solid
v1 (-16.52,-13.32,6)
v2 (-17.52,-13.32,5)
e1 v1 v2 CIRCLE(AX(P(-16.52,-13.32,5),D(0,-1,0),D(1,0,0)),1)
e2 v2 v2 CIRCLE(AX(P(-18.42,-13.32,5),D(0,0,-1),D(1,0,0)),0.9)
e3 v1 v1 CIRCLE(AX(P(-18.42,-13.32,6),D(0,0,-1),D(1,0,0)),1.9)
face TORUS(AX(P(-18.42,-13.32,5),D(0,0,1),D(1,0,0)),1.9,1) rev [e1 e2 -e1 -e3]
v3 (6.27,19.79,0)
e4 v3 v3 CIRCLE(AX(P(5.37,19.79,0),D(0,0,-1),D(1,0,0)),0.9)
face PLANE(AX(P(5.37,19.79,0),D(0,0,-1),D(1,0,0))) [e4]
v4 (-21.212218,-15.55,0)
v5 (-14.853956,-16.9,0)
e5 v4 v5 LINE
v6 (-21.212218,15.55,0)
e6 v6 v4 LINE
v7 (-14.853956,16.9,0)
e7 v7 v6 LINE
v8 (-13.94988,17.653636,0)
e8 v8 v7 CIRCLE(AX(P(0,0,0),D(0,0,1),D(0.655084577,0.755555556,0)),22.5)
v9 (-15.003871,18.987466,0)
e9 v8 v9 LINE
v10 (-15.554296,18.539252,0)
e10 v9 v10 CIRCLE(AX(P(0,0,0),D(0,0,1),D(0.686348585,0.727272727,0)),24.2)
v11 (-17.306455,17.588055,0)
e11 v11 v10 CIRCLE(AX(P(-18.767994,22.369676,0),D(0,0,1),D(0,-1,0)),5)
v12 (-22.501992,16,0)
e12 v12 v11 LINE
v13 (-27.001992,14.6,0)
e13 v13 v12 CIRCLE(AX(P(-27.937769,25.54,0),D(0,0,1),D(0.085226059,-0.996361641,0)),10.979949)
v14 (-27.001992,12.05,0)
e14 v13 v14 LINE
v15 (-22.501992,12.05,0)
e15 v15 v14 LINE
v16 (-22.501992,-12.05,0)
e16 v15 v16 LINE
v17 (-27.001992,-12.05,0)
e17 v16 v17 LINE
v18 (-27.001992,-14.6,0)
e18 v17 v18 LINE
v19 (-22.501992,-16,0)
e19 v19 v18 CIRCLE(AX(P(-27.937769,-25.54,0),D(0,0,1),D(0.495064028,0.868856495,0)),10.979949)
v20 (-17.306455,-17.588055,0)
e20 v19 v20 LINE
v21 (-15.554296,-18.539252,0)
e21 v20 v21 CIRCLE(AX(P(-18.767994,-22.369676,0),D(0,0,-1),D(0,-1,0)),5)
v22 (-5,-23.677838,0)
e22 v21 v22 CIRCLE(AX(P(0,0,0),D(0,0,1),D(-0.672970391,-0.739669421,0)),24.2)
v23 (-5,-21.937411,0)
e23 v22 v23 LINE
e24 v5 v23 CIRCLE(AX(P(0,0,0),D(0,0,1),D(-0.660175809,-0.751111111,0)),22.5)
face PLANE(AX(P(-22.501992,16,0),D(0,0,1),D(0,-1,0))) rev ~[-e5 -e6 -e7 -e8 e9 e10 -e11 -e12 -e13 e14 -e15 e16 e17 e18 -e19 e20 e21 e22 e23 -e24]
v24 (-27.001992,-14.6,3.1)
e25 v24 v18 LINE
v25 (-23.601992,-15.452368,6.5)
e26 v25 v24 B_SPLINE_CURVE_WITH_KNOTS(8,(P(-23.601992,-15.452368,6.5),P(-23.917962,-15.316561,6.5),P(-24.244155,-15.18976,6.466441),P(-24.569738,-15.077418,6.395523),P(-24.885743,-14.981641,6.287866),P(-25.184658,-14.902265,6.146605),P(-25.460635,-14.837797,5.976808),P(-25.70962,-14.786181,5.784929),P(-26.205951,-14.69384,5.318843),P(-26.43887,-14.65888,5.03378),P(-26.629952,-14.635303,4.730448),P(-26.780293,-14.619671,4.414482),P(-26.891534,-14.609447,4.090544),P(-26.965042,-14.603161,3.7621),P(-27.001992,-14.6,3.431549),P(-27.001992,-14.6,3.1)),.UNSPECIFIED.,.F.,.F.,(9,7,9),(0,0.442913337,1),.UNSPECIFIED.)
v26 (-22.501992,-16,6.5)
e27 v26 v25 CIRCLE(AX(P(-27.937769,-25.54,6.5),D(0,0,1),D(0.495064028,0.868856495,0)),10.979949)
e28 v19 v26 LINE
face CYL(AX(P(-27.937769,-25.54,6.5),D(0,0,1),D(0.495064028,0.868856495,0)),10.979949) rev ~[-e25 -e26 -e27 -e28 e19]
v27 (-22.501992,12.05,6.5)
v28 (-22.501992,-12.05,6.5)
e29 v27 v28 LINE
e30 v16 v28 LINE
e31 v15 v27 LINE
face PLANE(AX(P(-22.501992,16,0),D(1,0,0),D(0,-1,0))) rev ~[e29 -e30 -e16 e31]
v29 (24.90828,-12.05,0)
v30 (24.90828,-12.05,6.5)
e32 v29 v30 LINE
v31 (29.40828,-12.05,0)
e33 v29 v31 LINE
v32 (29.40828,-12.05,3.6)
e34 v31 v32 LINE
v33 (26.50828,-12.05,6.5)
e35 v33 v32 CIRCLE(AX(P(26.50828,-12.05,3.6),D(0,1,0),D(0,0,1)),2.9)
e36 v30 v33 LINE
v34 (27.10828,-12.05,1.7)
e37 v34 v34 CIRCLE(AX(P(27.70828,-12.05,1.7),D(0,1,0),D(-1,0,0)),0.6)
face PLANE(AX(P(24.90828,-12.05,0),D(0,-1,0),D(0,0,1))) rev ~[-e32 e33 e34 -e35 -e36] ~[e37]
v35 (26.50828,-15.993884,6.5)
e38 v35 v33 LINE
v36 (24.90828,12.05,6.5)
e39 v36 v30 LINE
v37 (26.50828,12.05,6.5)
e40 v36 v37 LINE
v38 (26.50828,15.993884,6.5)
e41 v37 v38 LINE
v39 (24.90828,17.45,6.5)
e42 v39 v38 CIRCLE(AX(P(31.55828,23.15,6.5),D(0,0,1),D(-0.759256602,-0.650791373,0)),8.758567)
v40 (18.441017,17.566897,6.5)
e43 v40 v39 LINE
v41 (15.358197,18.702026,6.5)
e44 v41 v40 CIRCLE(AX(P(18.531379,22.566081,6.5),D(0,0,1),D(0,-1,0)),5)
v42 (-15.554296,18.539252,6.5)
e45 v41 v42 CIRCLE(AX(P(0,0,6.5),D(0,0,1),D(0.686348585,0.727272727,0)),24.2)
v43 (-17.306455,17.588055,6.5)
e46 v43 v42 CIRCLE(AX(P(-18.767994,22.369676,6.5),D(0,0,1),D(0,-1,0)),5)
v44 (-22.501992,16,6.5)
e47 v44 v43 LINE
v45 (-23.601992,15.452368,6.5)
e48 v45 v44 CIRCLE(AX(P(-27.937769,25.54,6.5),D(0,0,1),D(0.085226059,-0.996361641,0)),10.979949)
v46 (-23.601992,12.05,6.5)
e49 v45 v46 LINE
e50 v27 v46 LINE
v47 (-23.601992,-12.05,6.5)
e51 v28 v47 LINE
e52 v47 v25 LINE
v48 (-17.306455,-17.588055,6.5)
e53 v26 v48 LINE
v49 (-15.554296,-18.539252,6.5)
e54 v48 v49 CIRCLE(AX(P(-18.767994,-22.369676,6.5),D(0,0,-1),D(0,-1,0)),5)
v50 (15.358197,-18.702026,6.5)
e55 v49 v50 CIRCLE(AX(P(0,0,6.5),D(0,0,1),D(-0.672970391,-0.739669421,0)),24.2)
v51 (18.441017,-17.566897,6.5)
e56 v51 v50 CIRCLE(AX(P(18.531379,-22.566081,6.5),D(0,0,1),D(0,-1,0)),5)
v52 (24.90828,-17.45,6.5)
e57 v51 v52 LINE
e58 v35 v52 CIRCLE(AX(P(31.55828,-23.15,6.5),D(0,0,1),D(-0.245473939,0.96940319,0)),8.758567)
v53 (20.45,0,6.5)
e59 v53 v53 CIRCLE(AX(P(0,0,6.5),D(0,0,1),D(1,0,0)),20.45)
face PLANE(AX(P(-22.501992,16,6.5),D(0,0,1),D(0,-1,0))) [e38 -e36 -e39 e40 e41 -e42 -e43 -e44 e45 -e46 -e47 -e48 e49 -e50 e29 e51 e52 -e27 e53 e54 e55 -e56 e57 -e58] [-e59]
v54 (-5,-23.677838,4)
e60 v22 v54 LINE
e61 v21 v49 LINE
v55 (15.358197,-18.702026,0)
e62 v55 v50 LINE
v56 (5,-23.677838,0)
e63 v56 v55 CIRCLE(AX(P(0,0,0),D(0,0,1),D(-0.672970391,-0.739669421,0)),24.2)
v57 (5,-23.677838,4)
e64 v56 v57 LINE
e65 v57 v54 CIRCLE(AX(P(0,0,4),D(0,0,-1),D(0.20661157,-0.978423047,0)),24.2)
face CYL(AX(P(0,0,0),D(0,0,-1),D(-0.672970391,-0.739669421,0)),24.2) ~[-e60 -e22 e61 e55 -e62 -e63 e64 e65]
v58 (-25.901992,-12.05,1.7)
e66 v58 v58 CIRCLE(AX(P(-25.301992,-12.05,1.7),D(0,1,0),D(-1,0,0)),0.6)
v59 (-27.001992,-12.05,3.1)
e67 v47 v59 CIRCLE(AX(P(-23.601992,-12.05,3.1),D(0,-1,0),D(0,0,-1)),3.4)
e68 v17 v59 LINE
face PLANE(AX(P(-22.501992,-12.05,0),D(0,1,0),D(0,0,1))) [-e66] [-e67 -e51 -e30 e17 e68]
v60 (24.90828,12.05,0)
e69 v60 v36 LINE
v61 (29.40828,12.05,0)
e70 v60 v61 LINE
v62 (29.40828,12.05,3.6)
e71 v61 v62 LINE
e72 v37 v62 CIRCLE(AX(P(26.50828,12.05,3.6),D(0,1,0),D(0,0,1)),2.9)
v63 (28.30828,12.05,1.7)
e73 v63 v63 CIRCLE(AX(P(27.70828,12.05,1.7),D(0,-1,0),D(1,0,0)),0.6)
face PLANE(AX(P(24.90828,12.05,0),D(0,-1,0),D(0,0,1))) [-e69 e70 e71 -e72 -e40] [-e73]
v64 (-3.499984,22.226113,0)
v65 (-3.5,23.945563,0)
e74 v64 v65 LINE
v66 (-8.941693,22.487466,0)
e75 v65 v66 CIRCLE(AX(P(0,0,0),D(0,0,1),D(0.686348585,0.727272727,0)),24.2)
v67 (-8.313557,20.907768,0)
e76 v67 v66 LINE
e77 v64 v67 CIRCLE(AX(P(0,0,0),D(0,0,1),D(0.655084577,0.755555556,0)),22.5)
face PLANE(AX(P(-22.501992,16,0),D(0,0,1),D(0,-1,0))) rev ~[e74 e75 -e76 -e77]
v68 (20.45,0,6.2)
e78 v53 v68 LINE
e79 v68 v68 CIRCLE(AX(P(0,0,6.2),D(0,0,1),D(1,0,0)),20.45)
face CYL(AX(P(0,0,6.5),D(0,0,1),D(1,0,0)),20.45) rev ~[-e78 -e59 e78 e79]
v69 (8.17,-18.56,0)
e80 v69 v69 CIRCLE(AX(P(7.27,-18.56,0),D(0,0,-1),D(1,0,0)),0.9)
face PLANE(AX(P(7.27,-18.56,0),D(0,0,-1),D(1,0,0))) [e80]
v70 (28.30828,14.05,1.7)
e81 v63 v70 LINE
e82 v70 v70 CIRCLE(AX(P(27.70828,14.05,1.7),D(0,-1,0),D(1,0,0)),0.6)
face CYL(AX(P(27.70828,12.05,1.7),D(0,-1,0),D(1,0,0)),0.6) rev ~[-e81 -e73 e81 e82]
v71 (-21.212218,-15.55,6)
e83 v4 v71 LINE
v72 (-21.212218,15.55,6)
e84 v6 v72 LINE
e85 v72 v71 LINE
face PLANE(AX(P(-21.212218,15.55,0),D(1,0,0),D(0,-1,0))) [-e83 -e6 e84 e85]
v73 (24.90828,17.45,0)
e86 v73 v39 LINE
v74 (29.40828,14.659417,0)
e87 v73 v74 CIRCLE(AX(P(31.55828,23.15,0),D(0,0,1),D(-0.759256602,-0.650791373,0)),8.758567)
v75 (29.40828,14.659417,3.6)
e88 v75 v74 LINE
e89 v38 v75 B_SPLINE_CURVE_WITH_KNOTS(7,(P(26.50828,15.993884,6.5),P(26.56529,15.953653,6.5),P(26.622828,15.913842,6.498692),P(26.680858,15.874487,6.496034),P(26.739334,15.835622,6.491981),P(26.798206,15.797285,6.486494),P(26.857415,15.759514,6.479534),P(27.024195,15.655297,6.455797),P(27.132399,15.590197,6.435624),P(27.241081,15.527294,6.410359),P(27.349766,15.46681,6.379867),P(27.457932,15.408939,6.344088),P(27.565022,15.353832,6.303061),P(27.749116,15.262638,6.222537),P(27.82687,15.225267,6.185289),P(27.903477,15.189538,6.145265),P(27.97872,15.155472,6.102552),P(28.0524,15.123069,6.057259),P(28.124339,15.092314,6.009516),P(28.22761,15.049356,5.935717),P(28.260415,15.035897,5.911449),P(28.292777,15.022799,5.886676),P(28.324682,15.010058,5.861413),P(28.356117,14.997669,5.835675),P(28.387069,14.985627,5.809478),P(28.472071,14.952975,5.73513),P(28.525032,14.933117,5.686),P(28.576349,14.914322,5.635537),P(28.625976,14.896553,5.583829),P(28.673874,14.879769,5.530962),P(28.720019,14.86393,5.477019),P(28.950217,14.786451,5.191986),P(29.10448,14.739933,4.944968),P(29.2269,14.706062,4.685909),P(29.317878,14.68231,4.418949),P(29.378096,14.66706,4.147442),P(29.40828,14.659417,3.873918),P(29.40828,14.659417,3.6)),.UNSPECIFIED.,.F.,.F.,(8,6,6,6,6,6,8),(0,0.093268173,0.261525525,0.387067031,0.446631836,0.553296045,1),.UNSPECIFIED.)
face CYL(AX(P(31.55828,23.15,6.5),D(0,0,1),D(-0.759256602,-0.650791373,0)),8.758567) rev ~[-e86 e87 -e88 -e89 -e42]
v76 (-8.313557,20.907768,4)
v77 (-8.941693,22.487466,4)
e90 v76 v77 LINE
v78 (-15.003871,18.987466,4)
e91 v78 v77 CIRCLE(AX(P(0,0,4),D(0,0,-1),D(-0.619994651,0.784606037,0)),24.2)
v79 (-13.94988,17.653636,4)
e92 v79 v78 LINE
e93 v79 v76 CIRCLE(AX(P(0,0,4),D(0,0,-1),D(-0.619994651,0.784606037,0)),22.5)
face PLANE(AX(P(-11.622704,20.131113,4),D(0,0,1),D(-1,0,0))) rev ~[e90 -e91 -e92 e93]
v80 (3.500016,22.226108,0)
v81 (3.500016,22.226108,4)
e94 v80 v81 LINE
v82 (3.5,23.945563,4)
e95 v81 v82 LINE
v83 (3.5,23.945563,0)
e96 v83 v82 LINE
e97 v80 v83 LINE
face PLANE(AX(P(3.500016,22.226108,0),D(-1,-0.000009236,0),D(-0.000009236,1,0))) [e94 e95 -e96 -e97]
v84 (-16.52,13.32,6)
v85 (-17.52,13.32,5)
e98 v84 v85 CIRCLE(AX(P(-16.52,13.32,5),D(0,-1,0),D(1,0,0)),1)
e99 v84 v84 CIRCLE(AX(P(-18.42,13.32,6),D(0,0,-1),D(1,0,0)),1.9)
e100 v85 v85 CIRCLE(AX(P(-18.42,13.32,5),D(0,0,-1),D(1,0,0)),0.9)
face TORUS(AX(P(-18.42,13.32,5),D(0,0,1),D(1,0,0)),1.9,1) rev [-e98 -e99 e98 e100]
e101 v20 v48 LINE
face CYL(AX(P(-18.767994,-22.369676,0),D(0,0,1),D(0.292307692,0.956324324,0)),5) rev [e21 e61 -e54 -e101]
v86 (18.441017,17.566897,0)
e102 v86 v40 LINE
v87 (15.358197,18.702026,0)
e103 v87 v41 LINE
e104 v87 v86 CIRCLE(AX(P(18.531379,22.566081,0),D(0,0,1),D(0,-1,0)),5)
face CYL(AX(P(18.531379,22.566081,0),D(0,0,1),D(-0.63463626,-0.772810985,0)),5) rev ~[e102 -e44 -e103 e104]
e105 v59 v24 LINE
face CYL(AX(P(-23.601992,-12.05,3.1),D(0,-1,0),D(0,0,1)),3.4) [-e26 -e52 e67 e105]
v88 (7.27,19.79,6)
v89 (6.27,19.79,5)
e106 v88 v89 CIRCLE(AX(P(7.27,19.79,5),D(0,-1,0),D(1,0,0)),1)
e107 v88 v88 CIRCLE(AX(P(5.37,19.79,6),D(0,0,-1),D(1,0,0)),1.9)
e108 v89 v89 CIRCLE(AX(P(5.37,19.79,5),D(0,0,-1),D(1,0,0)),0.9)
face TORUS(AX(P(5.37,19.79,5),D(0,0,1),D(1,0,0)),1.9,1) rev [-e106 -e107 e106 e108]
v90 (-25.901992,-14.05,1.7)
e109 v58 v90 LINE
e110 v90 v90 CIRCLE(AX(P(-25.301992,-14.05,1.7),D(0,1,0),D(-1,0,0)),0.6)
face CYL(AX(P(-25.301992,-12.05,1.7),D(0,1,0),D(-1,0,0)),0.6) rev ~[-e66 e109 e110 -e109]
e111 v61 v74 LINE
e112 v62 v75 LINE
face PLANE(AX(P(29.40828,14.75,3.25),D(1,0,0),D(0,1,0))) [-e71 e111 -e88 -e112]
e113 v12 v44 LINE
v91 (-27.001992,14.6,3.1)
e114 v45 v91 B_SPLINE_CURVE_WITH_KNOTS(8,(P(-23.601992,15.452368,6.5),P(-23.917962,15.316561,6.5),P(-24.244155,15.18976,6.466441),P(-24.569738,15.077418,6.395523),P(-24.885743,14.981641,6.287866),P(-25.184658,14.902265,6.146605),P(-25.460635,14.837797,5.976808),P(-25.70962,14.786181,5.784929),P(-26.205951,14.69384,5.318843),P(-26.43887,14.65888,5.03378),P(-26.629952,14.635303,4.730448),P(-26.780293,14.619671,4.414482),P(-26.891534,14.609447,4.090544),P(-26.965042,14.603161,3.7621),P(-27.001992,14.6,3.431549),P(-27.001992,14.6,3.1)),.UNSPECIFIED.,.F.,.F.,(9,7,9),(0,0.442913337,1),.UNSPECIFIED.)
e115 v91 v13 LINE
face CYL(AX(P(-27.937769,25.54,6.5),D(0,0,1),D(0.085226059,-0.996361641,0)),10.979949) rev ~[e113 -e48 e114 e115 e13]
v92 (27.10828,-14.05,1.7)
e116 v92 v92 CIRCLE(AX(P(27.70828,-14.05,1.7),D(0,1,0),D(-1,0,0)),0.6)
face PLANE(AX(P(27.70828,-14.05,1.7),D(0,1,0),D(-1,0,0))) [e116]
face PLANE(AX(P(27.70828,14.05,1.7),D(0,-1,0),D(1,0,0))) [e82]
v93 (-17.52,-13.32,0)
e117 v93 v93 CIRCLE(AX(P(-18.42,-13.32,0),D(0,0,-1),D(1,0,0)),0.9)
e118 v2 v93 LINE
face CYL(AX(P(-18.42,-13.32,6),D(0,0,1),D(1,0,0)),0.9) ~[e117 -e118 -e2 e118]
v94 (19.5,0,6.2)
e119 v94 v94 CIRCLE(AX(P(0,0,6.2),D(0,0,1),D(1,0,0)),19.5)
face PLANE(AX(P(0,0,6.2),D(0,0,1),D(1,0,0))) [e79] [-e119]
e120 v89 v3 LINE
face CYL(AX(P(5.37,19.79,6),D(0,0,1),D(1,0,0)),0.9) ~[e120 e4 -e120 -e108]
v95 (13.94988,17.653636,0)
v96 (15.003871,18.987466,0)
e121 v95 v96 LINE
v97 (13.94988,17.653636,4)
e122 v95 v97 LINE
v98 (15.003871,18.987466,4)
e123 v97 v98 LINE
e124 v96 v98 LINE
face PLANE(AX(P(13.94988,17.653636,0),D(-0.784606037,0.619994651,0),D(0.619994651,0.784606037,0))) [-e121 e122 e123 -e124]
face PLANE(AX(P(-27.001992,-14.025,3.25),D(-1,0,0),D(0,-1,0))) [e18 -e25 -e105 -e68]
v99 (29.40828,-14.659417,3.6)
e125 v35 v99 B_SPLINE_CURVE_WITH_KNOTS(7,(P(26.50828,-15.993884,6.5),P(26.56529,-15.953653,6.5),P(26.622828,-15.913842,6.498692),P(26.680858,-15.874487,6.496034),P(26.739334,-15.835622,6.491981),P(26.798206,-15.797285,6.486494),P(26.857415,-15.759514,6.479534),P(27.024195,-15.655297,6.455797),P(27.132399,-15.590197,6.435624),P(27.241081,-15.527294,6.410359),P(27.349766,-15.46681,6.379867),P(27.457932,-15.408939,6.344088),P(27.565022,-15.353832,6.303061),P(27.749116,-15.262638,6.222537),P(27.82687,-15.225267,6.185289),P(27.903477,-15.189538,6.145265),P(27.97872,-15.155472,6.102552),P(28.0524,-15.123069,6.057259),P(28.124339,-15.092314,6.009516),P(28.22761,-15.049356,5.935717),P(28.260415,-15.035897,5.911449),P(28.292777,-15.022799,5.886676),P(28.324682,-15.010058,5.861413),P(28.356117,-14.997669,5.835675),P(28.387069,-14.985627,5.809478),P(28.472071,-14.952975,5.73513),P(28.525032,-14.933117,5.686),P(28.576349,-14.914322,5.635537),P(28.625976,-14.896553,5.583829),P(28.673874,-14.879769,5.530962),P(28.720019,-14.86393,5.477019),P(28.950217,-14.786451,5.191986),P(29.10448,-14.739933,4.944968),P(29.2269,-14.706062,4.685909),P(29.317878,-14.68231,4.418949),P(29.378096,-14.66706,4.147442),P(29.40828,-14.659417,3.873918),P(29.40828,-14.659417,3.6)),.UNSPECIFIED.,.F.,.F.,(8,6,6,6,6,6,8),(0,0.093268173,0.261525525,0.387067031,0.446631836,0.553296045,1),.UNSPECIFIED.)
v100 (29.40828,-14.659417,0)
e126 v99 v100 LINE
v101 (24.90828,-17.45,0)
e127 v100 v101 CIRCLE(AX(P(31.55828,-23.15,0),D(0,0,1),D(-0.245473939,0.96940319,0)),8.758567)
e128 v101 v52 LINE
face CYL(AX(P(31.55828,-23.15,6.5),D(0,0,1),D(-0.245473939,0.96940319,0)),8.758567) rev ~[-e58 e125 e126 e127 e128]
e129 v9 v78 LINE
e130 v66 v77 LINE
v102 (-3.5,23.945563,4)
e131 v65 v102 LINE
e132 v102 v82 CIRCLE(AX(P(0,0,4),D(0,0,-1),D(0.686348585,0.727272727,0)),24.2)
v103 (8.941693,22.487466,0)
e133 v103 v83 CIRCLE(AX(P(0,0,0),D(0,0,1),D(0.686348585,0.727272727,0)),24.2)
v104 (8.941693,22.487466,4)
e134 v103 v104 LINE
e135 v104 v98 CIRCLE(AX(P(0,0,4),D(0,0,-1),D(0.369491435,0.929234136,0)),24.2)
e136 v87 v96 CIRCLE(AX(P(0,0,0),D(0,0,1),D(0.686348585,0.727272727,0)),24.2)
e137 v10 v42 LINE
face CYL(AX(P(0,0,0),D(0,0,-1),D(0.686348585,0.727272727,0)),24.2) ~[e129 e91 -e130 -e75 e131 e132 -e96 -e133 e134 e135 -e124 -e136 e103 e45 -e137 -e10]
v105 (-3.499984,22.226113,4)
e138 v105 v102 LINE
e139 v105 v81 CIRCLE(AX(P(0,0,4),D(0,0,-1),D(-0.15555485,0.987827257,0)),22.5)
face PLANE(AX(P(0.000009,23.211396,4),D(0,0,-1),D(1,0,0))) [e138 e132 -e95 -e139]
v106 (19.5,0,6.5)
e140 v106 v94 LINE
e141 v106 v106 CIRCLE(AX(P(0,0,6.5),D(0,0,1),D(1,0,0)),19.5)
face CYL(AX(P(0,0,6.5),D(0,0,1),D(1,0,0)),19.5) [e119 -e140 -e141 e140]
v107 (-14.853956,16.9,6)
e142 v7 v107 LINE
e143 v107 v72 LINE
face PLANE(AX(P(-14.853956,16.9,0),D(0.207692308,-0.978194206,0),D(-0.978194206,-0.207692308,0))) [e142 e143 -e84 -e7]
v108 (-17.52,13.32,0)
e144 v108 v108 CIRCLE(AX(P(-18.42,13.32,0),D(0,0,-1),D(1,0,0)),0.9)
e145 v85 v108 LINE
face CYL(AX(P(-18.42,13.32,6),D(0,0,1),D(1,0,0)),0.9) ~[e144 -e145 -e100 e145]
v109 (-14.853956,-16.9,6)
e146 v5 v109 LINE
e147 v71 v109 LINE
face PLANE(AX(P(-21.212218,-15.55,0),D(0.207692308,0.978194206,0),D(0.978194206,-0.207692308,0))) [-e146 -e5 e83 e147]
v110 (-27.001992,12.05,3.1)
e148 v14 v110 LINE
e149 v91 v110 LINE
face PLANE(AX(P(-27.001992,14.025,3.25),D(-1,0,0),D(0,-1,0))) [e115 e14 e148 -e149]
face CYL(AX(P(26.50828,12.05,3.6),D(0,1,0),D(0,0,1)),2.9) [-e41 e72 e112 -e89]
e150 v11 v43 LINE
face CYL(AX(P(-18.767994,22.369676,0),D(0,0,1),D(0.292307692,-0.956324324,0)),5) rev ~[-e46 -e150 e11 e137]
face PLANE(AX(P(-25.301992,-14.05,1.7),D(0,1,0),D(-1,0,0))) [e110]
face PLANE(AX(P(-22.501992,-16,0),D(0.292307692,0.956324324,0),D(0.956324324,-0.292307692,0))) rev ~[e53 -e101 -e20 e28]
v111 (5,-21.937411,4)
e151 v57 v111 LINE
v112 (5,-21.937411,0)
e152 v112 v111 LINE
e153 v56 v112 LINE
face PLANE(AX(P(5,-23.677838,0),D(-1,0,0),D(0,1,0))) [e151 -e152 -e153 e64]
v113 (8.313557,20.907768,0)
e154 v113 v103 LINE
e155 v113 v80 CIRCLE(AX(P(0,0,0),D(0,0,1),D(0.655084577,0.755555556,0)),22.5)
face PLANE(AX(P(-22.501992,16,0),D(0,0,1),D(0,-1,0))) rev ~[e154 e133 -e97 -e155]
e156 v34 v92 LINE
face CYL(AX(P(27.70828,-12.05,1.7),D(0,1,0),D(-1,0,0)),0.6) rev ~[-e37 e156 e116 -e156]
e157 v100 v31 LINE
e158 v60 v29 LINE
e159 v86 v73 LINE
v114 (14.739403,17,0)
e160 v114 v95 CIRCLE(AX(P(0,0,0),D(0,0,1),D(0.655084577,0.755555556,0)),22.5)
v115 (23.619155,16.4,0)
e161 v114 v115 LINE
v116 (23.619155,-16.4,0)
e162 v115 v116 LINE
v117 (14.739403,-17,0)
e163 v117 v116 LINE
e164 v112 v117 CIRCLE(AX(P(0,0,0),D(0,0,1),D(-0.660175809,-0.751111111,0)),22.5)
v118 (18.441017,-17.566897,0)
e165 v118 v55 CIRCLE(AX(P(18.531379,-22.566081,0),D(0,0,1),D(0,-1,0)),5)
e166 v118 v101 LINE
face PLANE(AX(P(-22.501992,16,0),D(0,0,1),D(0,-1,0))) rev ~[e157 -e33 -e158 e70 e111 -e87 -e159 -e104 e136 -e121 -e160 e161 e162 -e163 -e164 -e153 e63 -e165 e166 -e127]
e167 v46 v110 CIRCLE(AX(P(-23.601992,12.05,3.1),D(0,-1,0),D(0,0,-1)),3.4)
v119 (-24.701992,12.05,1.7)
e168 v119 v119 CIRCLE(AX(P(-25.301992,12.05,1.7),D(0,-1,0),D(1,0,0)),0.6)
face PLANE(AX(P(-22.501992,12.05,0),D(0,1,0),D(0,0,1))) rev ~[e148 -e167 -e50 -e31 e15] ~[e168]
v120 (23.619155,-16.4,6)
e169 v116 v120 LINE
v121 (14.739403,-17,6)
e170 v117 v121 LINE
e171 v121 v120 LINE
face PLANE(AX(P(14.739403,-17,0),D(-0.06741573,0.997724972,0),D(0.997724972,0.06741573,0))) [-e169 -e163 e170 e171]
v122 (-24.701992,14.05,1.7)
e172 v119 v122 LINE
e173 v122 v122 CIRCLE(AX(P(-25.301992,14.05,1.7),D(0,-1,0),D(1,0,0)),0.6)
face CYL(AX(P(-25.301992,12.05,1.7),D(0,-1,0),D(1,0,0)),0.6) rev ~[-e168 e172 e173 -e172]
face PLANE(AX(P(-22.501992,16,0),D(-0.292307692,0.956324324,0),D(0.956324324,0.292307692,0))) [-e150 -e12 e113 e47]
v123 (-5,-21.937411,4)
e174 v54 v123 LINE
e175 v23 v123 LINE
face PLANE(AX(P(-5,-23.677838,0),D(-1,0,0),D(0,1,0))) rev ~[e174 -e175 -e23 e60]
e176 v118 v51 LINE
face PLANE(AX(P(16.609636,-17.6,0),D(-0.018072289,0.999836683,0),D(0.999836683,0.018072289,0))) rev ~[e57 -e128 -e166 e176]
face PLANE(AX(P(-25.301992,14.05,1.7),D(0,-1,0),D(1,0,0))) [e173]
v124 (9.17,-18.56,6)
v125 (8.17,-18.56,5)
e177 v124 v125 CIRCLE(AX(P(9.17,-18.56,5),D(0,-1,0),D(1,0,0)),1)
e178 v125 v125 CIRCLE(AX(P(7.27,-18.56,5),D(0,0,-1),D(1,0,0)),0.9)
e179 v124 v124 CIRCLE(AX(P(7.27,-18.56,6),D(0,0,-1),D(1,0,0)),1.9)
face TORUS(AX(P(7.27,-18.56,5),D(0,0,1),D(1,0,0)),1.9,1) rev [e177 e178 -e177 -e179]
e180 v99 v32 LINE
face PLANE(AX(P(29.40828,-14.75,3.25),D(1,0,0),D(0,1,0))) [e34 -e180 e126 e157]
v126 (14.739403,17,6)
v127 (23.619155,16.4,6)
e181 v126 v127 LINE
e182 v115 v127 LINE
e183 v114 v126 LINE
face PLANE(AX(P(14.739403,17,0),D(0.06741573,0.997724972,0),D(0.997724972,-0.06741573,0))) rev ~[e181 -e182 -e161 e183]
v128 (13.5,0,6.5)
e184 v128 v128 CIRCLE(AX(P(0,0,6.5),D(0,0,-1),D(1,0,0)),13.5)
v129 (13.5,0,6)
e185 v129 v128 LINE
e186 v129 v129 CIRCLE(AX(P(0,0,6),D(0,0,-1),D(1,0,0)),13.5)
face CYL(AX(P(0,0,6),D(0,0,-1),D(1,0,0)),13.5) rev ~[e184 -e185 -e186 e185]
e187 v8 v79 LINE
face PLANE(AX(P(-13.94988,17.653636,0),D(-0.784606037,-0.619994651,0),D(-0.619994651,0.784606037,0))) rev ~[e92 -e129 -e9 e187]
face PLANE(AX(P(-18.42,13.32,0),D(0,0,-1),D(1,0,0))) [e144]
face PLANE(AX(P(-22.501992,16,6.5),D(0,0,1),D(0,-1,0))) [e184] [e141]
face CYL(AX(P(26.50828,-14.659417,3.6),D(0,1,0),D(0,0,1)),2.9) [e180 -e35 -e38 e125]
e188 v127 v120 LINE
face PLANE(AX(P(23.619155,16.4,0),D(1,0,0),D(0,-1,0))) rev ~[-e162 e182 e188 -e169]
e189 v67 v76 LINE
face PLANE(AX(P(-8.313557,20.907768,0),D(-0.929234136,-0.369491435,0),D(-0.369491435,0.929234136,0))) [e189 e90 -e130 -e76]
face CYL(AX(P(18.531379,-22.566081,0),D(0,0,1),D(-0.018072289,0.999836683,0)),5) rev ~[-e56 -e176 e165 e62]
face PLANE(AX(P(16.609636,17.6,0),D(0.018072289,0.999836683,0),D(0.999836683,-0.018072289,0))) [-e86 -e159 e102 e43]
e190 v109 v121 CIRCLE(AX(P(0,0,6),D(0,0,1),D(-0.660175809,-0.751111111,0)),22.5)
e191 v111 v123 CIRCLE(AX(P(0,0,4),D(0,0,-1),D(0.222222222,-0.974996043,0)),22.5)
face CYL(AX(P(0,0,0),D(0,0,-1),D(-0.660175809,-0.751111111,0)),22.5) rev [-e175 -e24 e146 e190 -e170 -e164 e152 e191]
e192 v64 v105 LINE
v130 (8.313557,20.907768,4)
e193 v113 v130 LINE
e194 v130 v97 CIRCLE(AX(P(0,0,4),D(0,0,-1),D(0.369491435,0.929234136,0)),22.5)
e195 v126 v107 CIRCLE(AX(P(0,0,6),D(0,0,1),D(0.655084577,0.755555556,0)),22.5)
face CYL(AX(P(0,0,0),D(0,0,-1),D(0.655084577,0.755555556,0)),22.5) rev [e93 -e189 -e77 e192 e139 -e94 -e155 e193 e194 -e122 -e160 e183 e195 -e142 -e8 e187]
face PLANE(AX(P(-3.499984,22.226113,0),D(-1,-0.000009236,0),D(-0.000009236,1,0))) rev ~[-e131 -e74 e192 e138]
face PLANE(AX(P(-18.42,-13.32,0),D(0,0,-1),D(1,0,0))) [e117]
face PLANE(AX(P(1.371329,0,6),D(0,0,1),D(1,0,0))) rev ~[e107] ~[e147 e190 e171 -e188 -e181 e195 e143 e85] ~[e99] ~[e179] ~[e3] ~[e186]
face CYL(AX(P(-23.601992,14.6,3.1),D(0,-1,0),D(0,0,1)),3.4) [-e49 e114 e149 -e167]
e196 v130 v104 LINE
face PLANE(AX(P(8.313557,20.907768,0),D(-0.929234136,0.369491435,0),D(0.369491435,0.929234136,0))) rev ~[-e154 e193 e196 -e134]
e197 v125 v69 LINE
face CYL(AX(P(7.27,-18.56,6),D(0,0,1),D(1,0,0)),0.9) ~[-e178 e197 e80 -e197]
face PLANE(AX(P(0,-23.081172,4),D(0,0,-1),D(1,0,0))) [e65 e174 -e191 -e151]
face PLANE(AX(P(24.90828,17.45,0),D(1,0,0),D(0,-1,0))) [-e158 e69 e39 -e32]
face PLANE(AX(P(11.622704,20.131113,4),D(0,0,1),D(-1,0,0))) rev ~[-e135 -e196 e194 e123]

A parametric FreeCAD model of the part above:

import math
import FreeCAD as App
import Part
import Sketcher

V = App.Vector


def edges_at(feature, points):
    """Names of the edges that pass closest to the given points."""
    edges = feature.Shape.Edges
    near = lambda p: min(range(len(edges)), key=lambda i: edges[i].distToShape(Part.Vertex(*p))[0])
    return sorted({f"Edge{near(p) + 1}" for p in points})


def add_polygon(sketch, points):
    """Adds a closed chain of lines whose ends are joined by coincident constraints."""
    first, n = sketch.GeometryCount, len(points)
    for a, b in zip(points, points[1:] + points[:1]):
        sketch.addGeometry(Part.LineSegment(App.Vector(*a, 0), App.Vector(*b, 0)), False)
    for i in range(n):
        sketch.addConstraint(Sketcher.Constraint("Coincident", first + i, 2, first + (i + 1) % n, 1))

doc = App.newDocument("Part")
body = doc.addObject("PartDesign::Body", "Body")

# Sketch on XY plane
sketch1 = body.newObject("Sketcher::SketchObject", "Sketch")
sketch1.AttachmentSupport = (doc.getObject("XY_Plane"), [""])
sketch1.MapMode = "FlatFace"
sketch1.addGeometry([
    Part.LineSegment(V(-22.501992, 16, 0), V(-22.501992, -16, 0)),  # 0
    Part.LineSegment(V(-22.501992, -16, 0), V(-16.285883, -17.9, 0)),  # 1
    Part.ArcOfCircle(Part.Circle(V(0, 0, 0), V(0, 0, 1), 24.2), math.radians(-132.296737), math.radians(-46.658242)),  # 2
    Part.LineSegment(V(16.609636, -17.6, 0), V(24.90828, -17.45, 0)),  # 3
    Part.LineSegment(V(24.90828, -17.45, 0), V(24.90828, 17.45, 0)),  # 4
    Part.LineSegment(V(24.90828, 17.45, 0), V(16.609636, 17.6, 0)),  # 5
    Part.ArcOfCircle(Part.Circle(V(0, 0, 0), V(0, 0, 1), 24.2), math.radians(46.658242), math.radians(132.296737)),  # 6
    Part.LineSegment(V(-16.285883, 17.9, 0), V(-22.501992, 16, 0)),  # 7
], False)
sketch1.addConstraint([
    Sketcher.Constraint("Coincident", 0, 2, 1, 1),
    Sketcher.Constraint("Coincident", 1, 2, 2, 1),
    Sketcher.Constraint("Coincident", 2, 2, 3, 1),
    Sketcher.Constraint("Coincident", 3, 2, 4, 1),
    Sketcher.Constraint("Coincident", 4, 2, 5, 1),
    Sketcher.Constraint("Coincident", 5, 2, 6, 1),
    Sketcher.Constraint("Coincident", 6, 2, 7, 1),
    Sketcher.Constraint("Coincident", 7, 2, 0, 1),
    Sketcher.Constraint("Vertical", 0),
    Sketcher.Constraint("Vertical", 4),
    Sketcher.Constraint("Coincident", 2, 3, -1, 1),
    Sketcher.Constraint("Coincident", 6, 3, -1, 1),
    Sketcher.Constraint("Equal", 2, 6),
    Sketcher.Constraint("Vertical", 2, 2, 5, 2),
    Sketcher.Constraint("Vertical", 1, 2, 6, 2),
    Sketcher.Constraint("Equal", 3, 5),
    Sketcher.Constraint("Equal", 1, 7),
    Sketcher.Constraint("Radius", 2, 24.2),
    Sketcher.Constraint("DistanceY", 0, 2, 0, 1, 32.0),
    Sketcher.Constraint("DistanceY", 4, 1, 4, 2, 34.9),
    Sketcher.Constraint("Distance", 1, 6.5),
    Sketcher.Constraint("Distance", 3, 8.3),
    Sketcher.Constraint("DistanceY", 1, 2, -1, 1, 17.9),
    Sketcher.Constraint("DistanceY", 2, 2, -1, 1, 17.6),
])
pad1 = body.newObject("PartDesign::Pad", "Pad")
pad1.Profile = sketch1
pad1.Length = 6.5

# Sketch on XY plane
sketch2 = body.newObject("Sketcher::SketchObject", "Sketch001")
sketch2.AttachmentSupport = (doc.getObject("XY_Plane"), [""])
sketch2.MapMode = "FlatFace"
sketch2.addGeometry([
    Part.LineSegment(V(-14.853956, 16.9, 0), V(-21.212218, 15.55, 0)),  # 0
    Part.LineSegment(V(-21.212218, 15.55, 0), V(-21.212218, -15.55, 0)),  # 1
    Part.LineSegment(V(-21.212218, -15.55, 0), V(-14.853956, -16.9, 0)),  # 2
    Part.ArcOfCircle(Part.Circle(V(0, 0, 0), V(0, 0, 1), 22.5), math.radians(-131.313282), math.radians(-49.073937)),  # 3
    Part.LineSegment(V(14.739403, -17, 0), V(23.619155, -16.4, 0)),  # 4
    Part.LineSegment(V(23.619155, -16.4, 0), V(23.619155, 16.4, 0)),  # 5
    Part.LineSegment(V(23.619155, 16.4, 0), V(14.739403, 17, 0)),  # 6
    Part.ArcOfCircle(Part.Circle(V(0, 0, 0), V(0, 0, 1), 22.5), math.radians(49.073937), math.radians(131.313282)),  # 7
], False)
sketch2.addConstraint([
    Sketcher.Constraint("Coincident", 0, 2, 1, 1),
    Sketcher.Constraint("Coincident", 1, 2, 2, 1),
    Sketcher.Constraint("Coincident", 2, 2, 3, 1),
    Sketcher.Constraint("Coincident", 3, 2, 4, 1),
    Sketcher.Constraint("Coincident", 4, 2, 5, 1),
    Sketcher.Constraint("Coincident", 5, 2, 6, 1),
    Sketcher.Constraint("Coincident", 6, 2, 7, 1),
    Sketcher.Constraint("Coincident", 7, 2, 0, 1),
    Sketcher.Constraint("Vertical", 1),
    Sketcher.Constraint("Vertical", 5),
    Sketcher.Constraint("Coincident", 3, 3, -1, 1),
    Sketcher.Constraint("Coincident", 7, 3, -1, 1),
    Sketcher.Constraint("Equal", 3, 7),
    Sketcher.Constraint("Vertical", 3, 2, 6, 2),
    Sketcher.Constraint("Vertical", 2, 2, 7, 2),
    Sketcher.Constraint("Equal", 0, 2),
    Sketcher.Constraint("Equal", 4, 6),
    Sketcher.Constraint("Radius", 3, 22.5),
    Sketcher.Constraint("DistanceY", 1, 2, 1, 1, 31.1),
    Sketcher.Constraint("DistanceY", 5, 1, 5, 2, 32.8),
    Sketcher.Constraint("DistanceY", 3, 2, -1, 1, 17.0),
    Sketcher.Constraint("Distance", 0, 6.5),
    Sketcher.Constraint("Distance", 4, 8.9),
    Sketcher.Constraint("DistanceY", 2, 2, -1, 1, 16.9),
])
pocket1 = body.newObject("PartDesign::Pocket", "Pocket")
pocket1.Profile = sketch2
pocket1.Length = 6
pocket1.Reversed = True

# Sketch on XY plane
sketch3 = body.newObject("Sketcher::SketchObject", "Sketch002")
sketch3.AttachmentSupport = (doc.getObject("XY_Plane"), [""])
sketch3.MapMode = "FlatFace"
sketch3.AttachmentOffset = App.Placement(V(0, 0, 6), App.Rotation())
sketch3.addGeometry(Part.Circle(V(0, 0, 0), V(0, 0, 1), 13.5), False)
sketch3.addConstraint([
    Sketcher.Constraint("Coincident", 0, 3, -1, 1),
    Sketcher.Constraint("Diameter", 0, 27.0),
])
pocket2 = body.newObject("PartDesign::Pocket", "Pocket001")
pocket2.Profile = sketch3
pocket2.Length = 1
pocket2.Reversed = True

# Sketch on YZ plane
sketch4 = body.newObject("Sketcher::SketchObject", "Sketch003")
sketch4.AttachmentSupport = (doc.getObject("YZ_Plane"), [""])
sketch4.MapMode = "FlatFace"
sketch4.AttachmentOffset = App.Placement(V(0, 0, 24.90828), App.Rotation())
add_polygon(sketch4, [(-17.45, 6.5), (-17.45, 0), (-12.05, 0), (-12.05, 6.5)])  # lines 0-3
add_polygon(sketch4, [(12.05, 6.5), (12.05, 0), (17.45, 0), (17.45, 6.5)])  # lines 4-7
sketch4.addConstraint([
    Sketcher.Constraint("Vertical", 0),
    Sketcher.Constraint("Horizontal", 1),
    Sketcher.Constraint("Vertical", 2),
    Sketcher.Constraint("Horizontal", 3),
    Sketcher.Constraint("Vertical", 4),
    Sketcher.Constraint("Horizontal", 5),
    Sketcher.Constraint("Vertical", 6),
    Sketcher.Constraint("Horizontal", 7),
    Sketcher.Constraint("Symmetric", 1, 2, 4, 2, -1, 1),
    Sketcher.Constraint("Symmetric", 0, 2, 5, 2, -2),
    Sketcher.Constraint("Horizontal", 3, 2, 6, 2),
    Sketcher.Constraint("DistanceX", 1, 1, 1, 2, 5.4),
    Sketcher.Constraint("DistanceY", 0, 2, 0, 1, 6.5),
    Sketcher.Constraint("DistanceX", 1, 2, 4, 2, 24.1),
])
pad2 = body.newObject("PartDesign::Pad", "Pad001")
pad2.Profile = sketch4
pad2.Length = 4.5

# Sketch on XY plane
sketch5 = body.newObject("Sketcher::SketchObject", "Sketch004")
sketch5.AttachmentSupport = (doc.getObject("XY_Plane"), [""])
sketch5.MapMode = "FlatFace"
sketch5.AttachmentOffset = App.Placement(V(0, 0, 6.5), App.Rotation())
sketch5.addGeometry([
    Part.ArcOfCircle(Part.Circle(V(31.55828, 23.15, 0), V(0, 0, 1), 8.758567), math.radians(-139.398705), math.radians(-104.209844)),  # 0
    Part.LineSegment(V(29.40828, 14.659417, 0), V(29.40828, 17.45, 0)),  # 1
    Part.LineSegment(V(29.40828, 17.45, 0), V(24.90828, 17.45, 0)),  # 2
    Part.ArcOfCircle(Part.Circle(V(31.55828, -23.15, 0), V(0, 0, 1), 8.758567), math.radians(104.209844), math.radians(139.398705)),  # 3
    Part.LineSegment(V(24.90828, -17.45, 0), V(29.40828, -17.45, 0)),  # 4
    Part.LineSegment(V(29.40828, -17.45, 0), V(29.40828, -14.659417, 0)),  # 5
], False)
sketch5.addConstraint([
    Sketcher.Constraint("Coincident", 0, 2, 1, 1),
    Sketcher.Constraint("Coincident", 1, 2, 2, 1),
    Sketcher.Constraint("Coincident", 2, 2, 0, 1),
    Sketcher.Constraint("Coincident", 3, 2, 4, 1),
    Sketcher.Constraint("Coincident", 4, 2, 5, 1),
    Sketcher.Constraint("Coincident", 5, 2, 3, 1),
    Sketcher.Constraint("Vertical", 1),
    Sketcher.Constraint("Horizontal", 2),
    Sketcher.Constraint("Horizontal", 4),
    Sketcher.Constraint("Vertical", 5),
    Sketcher.Constraint("Equal", 0, 3),
    Sketcher.Constraint("Symmetric", 0, 3, 3, 3, -1),
    Sketcher.Constraint("Symmetric", 1, 2, 4, 2, -1),
    Sketcher.Constraint("DistanceX", 2, 2, 2, 1, 4.5),
    Sketcher.Constraint("DistanceY", 3, 3, 0, 3, 46.3),
    Sketcher.Constraint("DistanceY", 1, 2, 0, 3, 5.7),
    Sketcher.Constraint("DistanceX", 0, 2, 0, 3, 2.15),
    Sketcher.Constraint("DistanceX", -1, 1, 0, 3, 31.55828),
])
pocket3 = body.newObject("PartDesign::Pocket", "Pocket002")
pocket3.Profile = sketch5
pocket3.Length = 10

# Sketch on XZ plane
sketch6 = body.newObject("Sketcher::SketchObject", "Sketch005")
sketch6.AttachmentSupport = (doc.getObject("XZ_Plane"), [""])
sketch6.MapMode = "FlatFace"
sketch6.AttachmentOffset = App.Placement(V(0, 0, 12.05), App.Rotation())
sketch6.addGeometry(Part.Circle(V(27.70828, 1.7, 0), V(0, 0, 1), 0.6), False)
sketch6.addConstraint([
    Sketcher.Constraint("Diameter", 0, 1.2),
    Sketcher.Constraint("DistanceY", -1, 1, 0, 3, 1.7),
    Sketcher.Constraint("DistanceX", -1, 1, 0, 3, 27.70828),
])
pocket4 = body.newObject("PartDesign::Pocket", "Pocket003")
pocket4.Profile = sketch6
pocket4.Length = 2
pocket4.Reversed = True

# Sketch on XZ plane
sketch7 = body.newObject("Sketcher::SketchObject", "Sketch006")
sketch7.AttachmentSupport = (doc.getObject("XZ_Plane"), [""])
sketch7.MapMode = "FlatFace"
sketch7.AttachmentOffset = App.Placement(V(0, 0, -12.05), App.Rotation())
sketch7.addGeometry(Part.Circle(V(27.70828, 1.7, 0), V(0, 0, 1), 0.6), False)
sketch7.addConstraint([
    Sketcher.Constraint("Diameter", 0, 1.2),
    Sketcher.Constraint("DistanceY", -1, 1, 0, 3, 1.7),
    Sketcher.Constraint("DistanceX", -1, 1, 0, 3, 27.70828),
])
pocket5 = body.newObject("PartDesign::Pocket", "Pocket004")
pocket5.Profile = sketch7
pocket5.Length = 2
doc.recompute()

fillet = body.newObject("PartDesign::Fillet", "Fillet")
fillet.Base = (pocket5, edges_at(pocket5, [(29.408, -13.355, 6.5)]))
fillet.Radius = 2.9
doc.recompute()

fillet2 = body.newObject("PartDesign::Fillet", "Fillet001")
fillet2.Base = (fillet, edges_at(fillet, [(29.408, 13.355, 6.5)]))
fillet2.Radius = 2.9
doc.recompute()

fillet3 = body.newObject("PartDesign::Fillet", "Fillet002")
fillet3.Base = (fillet2, edges_at(fillet2, [(16.61, -17.6, 3.25)]))
fillet3.Radius = 5
doc.recompute()

fillet4 = body.newObject("PartDesign::Fillet", "Fillet003")
fillet4.Base = (fillet3, edges_at(fillet3, [(16.61, 17.6, 3.25)]))
fillet4.Radius = 5
doc.recompute()

fillet5 = body.newObject("PartDesign::Fillet", "Fillet004")
fillet5.Base = (fillet4, edges_at(fillet4, [(-16.286, -17.9, 3.25)]))
fillet5.Radius = 5
doc.recompute()

fillet6 = body.newObject("PartDesign::Fillet", "Fillet005")
fillet6.Base = (fillet5, edges_at(fillet5, [(-16.286, 17.9, 3.25)]))
fillet6.Radius = 5

# Sketch on YZ plane
sketch8 = body.newObject("Sketcher::SketchObject", "Sketch007")
sketch8.AttachmentSupport = (doc.getObject("YZ_Plane"), [""])
sketch8.MapMode = "FlatFace"
sketch8.AttachmentOffset = App.Placement(V(0, 0, -22.501992), App.Rotation())
add_polygon(sketch8, [(16, 6.5), (16, 0), (12.05, 0), (12.05, 6.5)])  # lines 0-3
add_polygon(sketch8, [(-12.05, 6.5), (-12.05, 0), (-16, 0), (-16, 6.5)])  # lines 4-7
sketch8.addConstraint([
    Sketcher.Constraint("Vertical", 0),
    Sketcher.Constraint("Horizontal", 1),
    Sketcher.Constraint("Vertical", 2),
    Sketcher.Constraint("Horizontal", 3),
    Sketcher.Constraint("Vertical", 4),
    Sketcher.Constraint("Horizontal", 5),
    Sketcher.Constraint("Vertical", 6),
    Sketcher.Constraint("Horizontal", 7),
    Sketcher.Constraint("Symmetric", 1, 2, 4, 2, -1, 1),
    Sketcher.Constraint("Symmetric", 0, 2, 5, 2, -2),
    Sketcher.Constraint("Horizontal", 3, 2, 6, 2),
    Sketcher.Constraint("DistanceY", 0, 2, 0, 1, 6.5),
    Sketcher.Constraint("DistanceX", -1, 1, 0, 2, 16.0),
    Sketcher.Constraint("DistanceX", 1, 2, 1, 1, 3.95),
])
pad3 = body.newObject("PartDesign::Pad", "Pad002")
pad3.Profile = sketch8
pad3.Length = 4.5
pad3.Reversed = True

# Sketch on XY plane
sketch9 = body.newObject("Sketcher::SketchObject", "Sketch008")
sketch9.AttachmentSupport = (doc.getObject("XY_Plane"), [""])
sketch9.MapMode = "FlatFace"
sketch9.AttachmentOffset = App.Placement(V(0, 0, 6.5), App.Rotation())
sketch9.addGeometry([
    Part.ArcOfCircle(Part.Circle(V(-27.937769, 25.54, 0), V(0, 0, 1), 10.979949), math.radians(-85.110976), math.radians(-60.326028)),  # 0
    Part.LineSegment(V(-22.501992, 16, 0), V(-27.001992, 16, 0)),  # 1
    Part.LineSegment(V(-27.001992, 16, 0), V(-27.001992, 14.6, 0)),  # 2
    Part.ArcOfCircle(Part.Circle(V(-27.937769, -25.54, 0), V(0, 0, 1), 10.979949), math.radians(60.326028), math.radians(85.110976)),  # 3
    Part.LineSegment(V(-27.001992, -14.6, 0), V(-27.001992, -16, 0)),  # 4
    Part.LineSegment(V(-27.001992, -16, 0), V(-22.501992, -16, 0)),  # 5
], False)
sketch9.addConstraint([
    Sketcher.Constraint("Coincident", 0, 2, 1, 1),
    Sketcher.Constraint("Coincident", 1, 2, 2, 1),
    Sketcher.Constraint("Coincident", 2, 2, 0, 1),
    Sketcher.Constraint("Coincident", 3, 2, 4, 1),
    Sketcher.Constraint("Coincident", 4, 2, 5, 1),
    Sketcher.Constraint("Coincident", 5, 2, 3, 1),
    Sketcher.Constraint("Horizontal", 1),
    Sketcher.Constraint("Vertical", 2),
    Sketcher.Constraint("Vertical", 4),
    Sketcher.Constraint("Horizontal", 5),
    Sketcher.Constraint("Equal", 0, 3),
    Sketcher.Constraint("Symmetric", 0, 3, 3, 3, -1),
    Sketcher.Constraint("Symmetric", 1, 2, 4, 2, -1),
    Sketcher.Constraint("DistanceX", 1, 2, 1, 1, 4.5),
    Sketcher.Constraint("DistanceY", 2, 2, 2, 1, 1.4),
    Sketcher.Constraint("DistanceY", -1, 1, 0, 2, 16.0),
    Sketcher.Constraint("DistanceY", -1, 1, 0, 3, 25.54),
    Sketcher.Constraint("DistanceX", 0, 3, -1, 1, 27.937769),
])
pocket6 = body.newObject("PartDesign::Pocket", "Pocket005")
pocket6.Profile = sketch9
pocket6.Length = 10

# Sketch on XZ plane
sketch10 = body.newObject("Sketcher::SketchObject", "Sketch009")
sketch10.AttachmentSupport = (doc.getObject("XZ_Plane"), [""])
sketch10.MapMode = "FlatFace"
sketch10.AttachmentOffset = App.Placement(V(0, 0, 12.05), App.Rotation())
sketch10.addGeometry(Part.Circle(V(-25.301992, 1.7, 0), V(0, 0, 1), 0.6), False)
sketch10.addConstraint([
    Sketcher.Constraint("Diameter", 0, 1.2),
    Sketcher.Constraint("DistanceY", -1, 1, 0, 3, 1.7),
    Sketcher.Constraint("DistanceX", 0, 3, -1, 1, 25.301992),
])
pocket7 = body.newObject("PartDesign::Pocket", "Pocket006")
pocket7.Profile = sketch10
pocket7.Length = 2
pocket7.Reversed = True

# Sketch on XZ plane
sketch11 = body.newObject("Sketcher::SketchObject", "Sketch010")
sketch11.AttachmentSupport = (doc.getObject("XZ_Plane"), [""])
sketch11.MapMode = "FlatFace"
sketch11.AttachmentOffset = App.Placement(V(0, 0, -12.05), App.Rotation())
sketch11.addGeometry(Part.Circle(V(-25.301992, 1.7, 0), V(0, 0, 1), 0.6), False)
sketch11.addConstraint([
    Sketcher.Constraint("Diameter", 0, 1.2),
    Sketcher.Constraint("DistanceY", -1, 1, 0, 3, 1.7),
    Sketcher.Constraint("DistanceX", 0, 3, -1, 1, 25.301992),
])
pocket8 = body.newObject("PartDesign::Pocket", "Pocket007")
pocket8.Profile = sketch11
pocket8.Length = 2
doc.recompute()

fillet7 = body.newObject("PartDesign::Fillet", "Fillet006")
fillet7.Base = (pocket8, edges_at(pocket8, [(-27.002, 13.325, 6.5)]))
fillet7.Radius = 3.4
doc.recompute()

fillet8 = body.newObject("PartDesign::Fillet", "Fillet007")
fillet8.Base = (fillet7, edges_at(fillet7, [(-27.002, -13.325, 6.5)]))
fillet8.Radius = 3.4

# Sketch on XY plane
sketch12 = body.newObject("Sketcher::SketchObject", "Sketch011")
sketch12.AttachmentSupport = (doc.getObject("XY_Plane"), [""])
sketch12.MapMode = "FlatFace"
sketch12.AttachmentOffset = App.Placement(V(0, 0, 6.5), App.Rotation())
sketch12.addGeometry([
    Part.Circle(V(0, 0, 0), V(0, 0, 1), 20.45),
    Part.Circle(V(0, 0, 0), V(0, 0, 1), 19.5),
], False)
sketch12.addConstraint([
    Sketcher.Constraint("Coincident", 0, 3, -1, 1),
    Sketcher.Constraint("Coincident", 1, 3, -1, 1),
    Sketcher.Constraint("Diameter", 1, 39.0),
    Sketcher.Constraint("Diameter", 0, 40.9),
])
pocket9 = body.newObject("PartDesign::Pocket", "Pocket008")
pocket9.Profile = sketch12
pocket9.Length = 0.3

# Sketch on XY plane
sketch13 = body.newObject("Sketcher::SketchObject", "Sketch012")
sketch13.AttachmentSupport = (doc.getObject("XY_Plane"), [""])
sketch13.MapMode = "FlatFace"
sketch13.AttachmentOffset = App.Placement(V(0, 0, 6), App.Rotation())
sketch13.addGeometry([
    Part.Circle(V(-18.42, -13.32, 0), V(0, 0, 1), 0.9),
    Part.Circle(V(-18.42, 13.32, 0), V(0, 0, 1), 0.9),
    Part.Circle(V(7.27, -18.56, 0), V(0, 0, 1), 0.9),
    Part.Circle(V(5.37, 19.79, 0), V(0, 0, 1), 0.9),
], False)
sketch13.addConstraint([
    Sketcher.Constraint("Equal", 0, 1),
    Sketcher.Constraint("Equal", 1, 2),
    Sketcher.Constraint("Equal", 2, 3),
    Sketcher.Constraint("Symmetric", 0, 3, 1, 3, -1),
    Sketcher.Constraint("Diameter", 0, 1.8),
    Sketcher.Constraint("DistanceX", 3, 3, 2, 3, 1.9),
    Sketcher.Constraint("DistanceX", 0, 3, -1, 1, 18.42),
    Sketcher.Constraint("DistanceY", 0, 3, -1, 1, 13.32),
    Sketcher.Constraint("DistanceX", -1, 1, 2, 3, 7.27),
    Sketcher.Constraint("DistanceY", 2, 3, -1, 1, 18.56),
    Sketcher.Constraint("DistanceY", -1, 1, 3, 3, 19.79),
])
pad4 = body.newObject("PartDesign::Pad", "Pad003")
pad4.Profile = sketch13
pad4.Length = 6
pad4.Reversed = True
doc.recompute()

fillet9 = body.newObject("PartDesign::Fillet", "Fillet008")
fillet9.Base = (pad4, edges_at(pad4, [
    (-19.32, -13.32, 6),
    (6.37, -18.56, 6),
    (-19.32, 13.32, 6),
    (4.47, 19.79, 6),
]))
fillet9.Radius = 1

# Sketch on XY plane
sketch14 = body.newObject("Sketcher::SketchObject", "Sketch013")
sketch14.AttachmentSupport = (doc.getObject("XY_Plane"), [""])
sketch14.MapMode = "FlatFace"
sketch14.addGeometry([
    Part.LineSegment(V(-5, -23.677838, 0), V(-5, -21.937411, 0)),
    Part.ArcOfCircle(Part.Circle(V(0, 0, 0), V(0, 0, 1), 22.5), math.radians(-102.839588), math.radians(-77.160412)),
    Part.LineSegment(V(5, -21.937411, 0), V(5, -23.677838, 0)),
    Part.ArcOfCircle(Part.Circle(V(0, 0, 0), V(0, 0, 1), 24.2), math.radians(-101.923855), math.radians(-78.076145)),
], False)
sketch14.addConstraint([
    Sketcher.Constraint("Coincident", 0, 2, 1, 1),
    Sketcher.Constraint("Coincident", 1, 2, 2, 1),
    Sketcher.Constraint("Coincident", 2, 2, 3, 2),
    Sketcher.Constraint("Coincident", 3, 1, 0, 1),
    Sketcher.Constraint("Vertical", 0),
    Sketcher.Constraint("Vertical", 2),
    Sketcher.Constraint("Coincident", 1, 3, -1, 1),
    Sketcher.Constraint("Coincident", 3, 3, -1, 1),
    Sketcher.Constraint("Horizontal", 0, 2, 1, 2),
    Sketcher.Constraint("Radius", 1, 22.5),
    Sketcher.Constraint("Radius", 3, 24.2),
    Sketcher.Constraint("DistanceX", 0, 2, -1, 1, 5.0),
])
pocket10 = body.newObject("PartDesign::Pocket", "Pocket009")
pocket10.Profile = sketch14
pocket10.Length = 4
pocket10.Reversed = True

# Sketch on XY plane
sketch15 = body.newObject("Sketcher::SketchObject", "Sketch014")
sketch15.AttachmentSupport = (doc.getObject("XY_Plane"), [""])
sketch15.MapMode = "FlatFace"
sketch15.addGeometry([
    Part.LineSegment(V(-3.499984, 22.226113, 0), V(-3.5, 23.945563, 0)),  # 0
    Part.ArcOfCircle(Part.Circle(V(0, 0.000186, 0), V(0, 0, 1), 24.199816), math.radians(81.684192), math.radians(98.315808)),  # 1
    Part.LineSegment(V(3.5, 23.945563, 0), V(3.500016, 22.226108, 0)),  # 2
    Part.ArcOfCircle(Part.Circle(V(0, 0, 0), V(0, 0, 1), 22.5), math.radians(81.050941), math.radians(98.948977)),  # 3
    Part.ArcOfCircle(Part.Circle(V(0, 0, 0), V(0, 0, 1), 22.5), math.radians(111.684256), math.radians(128.315744)),  # 4
    Part.LineSegment(V(-13.94988, 17.653636, 0), V(-15.003871, 18.987466, 0)),  # 5
    Part.ArcOfCircle(Part.Circle(V(0, 0, 0), V(0, 0, 1), 24.2), math.radians(111.684256), math.radians(128.315744)),  # 6
    Part.LineSegment(V(-8.941693, 22.487466, 0), V(-8.313557, 20.907768, 0)),  # 7
    Part.ArcOfCircle(Part.Circle(V(0, 0, 0), V(0, 0, 1), 22.5), math.radians(51.684256), math.radians(68.315744)),  # 8
    Part.LineSegment(V(8.313557, 20.907768, 0), V(8.941693, 22.487466, 0)),  # 9
    Part.ArcOfCircle(Part.Circle(V(0, 0, 0), V(0, 0, 1), 24.2), math.radians(51.684256), math.radians(68.315744)),  # 10
    Part.LineSegment(V(15.003871, 18.987466, 0), V(13.94988, 17.653636, 0)),  # 11
], False)
sketch15.addConstraint([
    Sketcher.Constraint("Coincident", 0, 2, 1, 2),
    Sketcher.Constraint("Coincident", 1, 1, 2, 1),
    Sketcher.Constraint("Coincident", 2, 2, 3, 1),
    Sketcher.Constraint("Coincident", 3, 2, 0, 1),
    Sketcher.Constraint("Coincident", 4, 2, 5, 1),
    Sketcher.Constraint("Coincident", 5, 2, 6, 2),
    Sketcher.Constraint("Coincident", 6, 1, 7, 1),
    Sketcher.Constraint("Coincident", 7, 2, 4, 1),
    Sketcher.Constraint("Coincident", 8, 2, 9, 1),
    Sketcher.Constraint("Coincident", 9, 2, 10, 2),
    Sketcher.Constraint("Coincident", 10, 1, 11, 1),
    Sketcher.Constraint("Coincident", 11, 2, 8, 1),
    Sketcher.Constraint("Coincident", 3, 3, -1, 1),
    Sketcher.Constraint("Coincident", 4, 3, -1, 1),
    Sketcher.Constraint("Coincident", 6, 3, -1, 1),
    Sketcher.Constraint("Coincident", 8, 3, -1, 1),
    Sketcher.Constraint("Coincident", 10, 3, -1, 1),
    Sketcher.Constraint("Equal", 3, 4),
    Sketcher.Constraint("Equal", 4, 8),
    Sketcher.Constraint("Equal", 6, 10),
    Sketcher.Constraint("Symmetric", 0, 2, 1, 1, -2),
    Sketcher.Constraint("Parallel", 0, 2),
    Sketcher.Constraint("Horizontal", 7, 2, 8, 2),
    Sketcher.Constraint("Horizontal", 6, 1, 9, 2),
    Sketcher.Constraint("Horizontal", 5, 2, 10, 1),
    Sketcher.Constraint("Horizontal", 4, 2, 11, 2),
    Sketcher.Constraint("Radius", 3, 22.5),
    Sketcher.Constraint("Radius", 6, 24.2),
    Sketcher.Constraint("DistanceX", 0, 2, 1, 1, 7.0),
    Sketcher.Constraint("DistanceY", 5, 2, 6, 1, 3.5),
    Sketcher.Constraint("Radius", 1, 24.199816),
    Sketcher.Constraint("DistanceY", 7, 2, 6, 1, 1.579698),
    Sketcher.Constraint("Distance", 0, 1.71945),
    Sketcher.Constraint("DistanceY", -1, 1, 2, 2, 22.226108),
    Sketcher.Constraint("DistanceX", 4, 2, -1, 1, 13.94988),
    Sketcher.Constraint("DistanceX", 5, 2, -1, 1, 15.003871),
])
pocket11 = body.newObject("PartDesign::Pocket", "Pocket010")
pocket11.Profile = sketch15
pocket11.Length = 4
pocket11.Reversed = True

doc.recompute()
